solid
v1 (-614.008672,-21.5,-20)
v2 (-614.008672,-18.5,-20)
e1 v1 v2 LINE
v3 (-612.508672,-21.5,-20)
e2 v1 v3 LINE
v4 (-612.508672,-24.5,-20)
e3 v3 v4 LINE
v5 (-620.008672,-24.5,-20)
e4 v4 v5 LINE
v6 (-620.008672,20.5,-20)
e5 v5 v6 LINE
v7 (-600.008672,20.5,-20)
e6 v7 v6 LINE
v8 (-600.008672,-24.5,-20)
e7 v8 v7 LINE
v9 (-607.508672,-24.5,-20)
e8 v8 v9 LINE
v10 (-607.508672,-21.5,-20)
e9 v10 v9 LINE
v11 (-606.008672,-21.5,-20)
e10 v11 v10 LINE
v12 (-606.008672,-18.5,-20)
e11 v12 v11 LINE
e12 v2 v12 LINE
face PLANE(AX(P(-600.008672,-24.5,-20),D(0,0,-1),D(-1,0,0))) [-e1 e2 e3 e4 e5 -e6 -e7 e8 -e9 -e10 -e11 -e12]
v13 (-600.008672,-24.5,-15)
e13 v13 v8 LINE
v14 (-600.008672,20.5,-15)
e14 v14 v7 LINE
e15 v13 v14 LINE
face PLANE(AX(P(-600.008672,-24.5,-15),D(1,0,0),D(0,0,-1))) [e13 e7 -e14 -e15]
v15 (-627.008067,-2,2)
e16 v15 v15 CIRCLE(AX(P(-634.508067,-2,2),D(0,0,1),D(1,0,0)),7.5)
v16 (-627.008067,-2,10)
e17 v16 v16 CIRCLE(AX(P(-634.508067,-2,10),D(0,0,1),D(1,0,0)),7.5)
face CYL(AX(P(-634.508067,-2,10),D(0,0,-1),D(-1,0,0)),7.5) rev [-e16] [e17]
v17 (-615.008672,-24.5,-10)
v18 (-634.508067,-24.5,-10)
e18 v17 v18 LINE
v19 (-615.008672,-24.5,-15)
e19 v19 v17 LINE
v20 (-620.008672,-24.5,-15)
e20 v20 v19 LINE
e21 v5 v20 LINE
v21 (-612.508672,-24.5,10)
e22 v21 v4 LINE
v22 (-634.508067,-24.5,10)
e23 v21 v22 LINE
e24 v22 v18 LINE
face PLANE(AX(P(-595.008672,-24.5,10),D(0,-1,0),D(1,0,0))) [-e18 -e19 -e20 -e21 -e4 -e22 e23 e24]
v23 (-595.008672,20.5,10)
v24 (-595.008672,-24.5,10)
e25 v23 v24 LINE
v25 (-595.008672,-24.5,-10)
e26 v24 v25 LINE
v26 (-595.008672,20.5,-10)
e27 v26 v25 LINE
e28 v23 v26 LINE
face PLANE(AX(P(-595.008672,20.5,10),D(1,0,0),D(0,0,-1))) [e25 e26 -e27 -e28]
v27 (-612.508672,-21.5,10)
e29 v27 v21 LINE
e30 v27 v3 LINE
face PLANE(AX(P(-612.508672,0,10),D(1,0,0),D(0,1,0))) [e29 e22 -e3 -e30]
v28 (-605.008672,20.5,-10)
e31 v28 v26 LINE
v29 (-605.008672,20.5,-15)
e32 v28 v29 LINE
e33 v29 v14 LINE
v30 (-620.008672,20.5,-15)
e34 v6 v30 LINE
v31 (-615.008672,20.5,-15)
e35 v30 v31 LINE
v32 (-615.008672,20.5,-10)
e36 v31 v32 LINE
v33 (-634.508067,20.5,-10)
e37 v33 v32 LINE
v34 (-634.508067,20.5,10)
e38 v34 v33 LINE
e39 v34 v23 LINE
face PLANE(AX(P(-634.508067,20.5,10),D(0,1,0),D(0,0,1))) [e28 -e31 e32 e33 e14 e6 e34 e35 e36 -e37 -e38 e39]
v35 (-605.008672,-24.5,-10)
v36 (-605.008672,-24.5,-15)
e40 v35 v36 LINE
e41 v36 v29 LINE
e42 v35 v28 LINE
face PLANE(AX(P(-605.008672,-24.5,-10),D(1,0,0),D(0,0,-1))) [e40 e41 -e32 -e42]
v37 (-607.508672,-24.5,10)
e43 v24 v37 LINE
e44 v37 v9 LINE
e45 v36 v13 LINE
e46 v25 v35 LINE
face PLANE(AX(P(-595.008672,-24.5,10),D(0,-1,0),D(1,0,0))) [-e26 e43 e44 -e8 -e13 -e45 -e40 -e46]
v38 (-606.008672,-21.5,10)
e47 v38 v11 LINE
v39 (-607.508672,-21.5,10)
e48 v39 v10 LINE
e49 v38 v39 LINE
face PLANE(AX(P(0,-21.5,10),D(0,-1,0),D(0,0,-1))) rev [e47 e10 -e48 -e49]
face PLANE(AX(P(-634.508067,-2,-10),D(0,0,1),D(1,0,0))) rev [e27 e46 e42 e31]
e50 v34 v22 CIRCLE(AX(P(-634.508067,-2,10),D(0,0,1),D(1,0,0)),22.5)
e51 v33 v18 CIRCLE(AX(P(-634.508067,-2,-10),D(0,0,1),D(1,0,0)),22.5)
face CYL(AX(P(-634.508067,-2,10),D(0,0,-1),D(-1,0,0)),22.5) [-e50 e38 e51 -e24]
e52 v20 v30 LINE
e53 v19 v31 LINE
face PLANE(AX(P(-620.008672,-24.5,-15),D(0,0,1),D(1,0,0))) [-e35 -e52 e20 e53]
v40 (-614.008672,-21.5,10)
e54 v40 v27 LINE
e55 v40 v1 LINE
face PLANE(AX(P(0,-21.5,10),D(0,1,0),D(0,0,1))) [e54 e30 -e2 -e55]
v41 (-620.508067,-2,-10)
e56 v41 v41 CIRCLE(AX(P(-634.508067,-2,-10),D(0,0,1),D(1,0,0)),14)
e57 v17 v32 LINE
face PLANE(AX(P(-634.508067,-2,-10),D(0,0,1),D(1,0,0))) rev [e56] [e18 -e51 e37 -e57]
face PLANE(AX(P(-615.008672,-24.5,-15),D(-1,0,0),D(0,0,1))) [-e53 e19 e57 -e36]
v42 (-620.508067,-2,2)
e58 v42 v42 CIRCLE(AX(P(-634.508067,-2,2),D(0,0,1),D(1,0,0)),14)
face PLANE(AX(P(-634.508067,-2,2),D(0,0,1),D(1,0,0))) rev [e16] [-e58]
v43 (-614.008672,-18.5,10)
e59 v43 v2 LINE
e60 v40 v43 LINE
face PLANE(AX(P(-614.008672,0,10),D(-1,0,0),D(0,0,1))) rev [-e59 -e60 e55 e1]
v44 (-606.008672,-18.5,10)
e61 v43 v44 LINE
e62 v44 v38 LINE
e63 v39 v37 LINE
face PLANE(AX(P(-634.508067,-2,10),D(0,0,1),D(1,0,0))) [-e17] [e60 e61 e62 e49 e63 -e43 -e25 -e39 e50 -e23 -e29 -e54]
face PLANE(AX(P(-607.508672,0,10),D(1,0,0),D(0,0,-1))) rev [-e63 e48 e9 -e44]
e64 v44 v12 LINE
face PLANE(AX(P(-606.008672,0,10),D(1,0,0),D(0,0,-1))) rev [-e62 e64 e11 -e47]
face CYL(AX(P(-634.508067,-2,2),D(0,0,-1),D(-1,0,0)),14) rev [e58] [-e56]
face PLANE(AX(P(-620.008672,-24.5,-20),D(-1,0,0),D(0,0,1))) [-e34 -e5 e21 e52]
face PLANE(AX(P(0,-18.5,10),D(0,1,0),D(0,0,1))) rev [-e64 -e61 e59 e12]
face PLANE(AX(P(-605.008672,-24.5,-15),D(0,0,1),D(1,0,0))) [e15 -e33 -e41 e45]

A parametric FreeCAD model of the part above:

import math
import FreeCAD as App
import Part
import Sketcher
Q = App.Units.Quantity

doc = App.newDocument("Part")
body = doc.addObject("PartDesign::Body", "Body")

sketch1 = body.newObject("Sketcher::SketchObject", "Sketch")
sketch1.AttachmentSupport = (doc.getObject("XY_Plane"), [""])
sketch1.MapMode = "FlatFace"
sketch1.addGeometry([
    Part.LineSegment(App.Vector(-595, 20, 0), App.Vector(-635, 20, 0)),
    Part.ArcOfCircle(Part.Circle(App.Vector(-635, -2, 0), App.Vector(0, 0, 1), 22), math.radians(90), math.radians(270)),
    Part.LineSegment(App.Vector(-635, -24, 0), App.Vector(-595, -24, 0)),
    Part.LineSegment(App.Vector(-595, -24, 0), App.Vector(-595, 20, 0)),
    Part.Circle(App.Vector(-635, -2, 0), App.Vector(0, 0, 1), 8),
], False)
sketch1.addConstraint([
    Sketcher.Constraint("Tangent", 0, 2, 1, 1),
    Sketcher.Constraint("Tangent", 1, 2, 2, 1),
    Sketcher.Constraint("Coincident", 2, 2, 3, 1),
    Sketcher.Constraint("Coincident", 3, 2, 0, 1),
    Sketcher.Constraint("Horizontal", 0),
    Sketcher.Constraint("Horizontal", 2),
    Sketcher.Constraint("Vertical", 3),
    Sketcher.Constraint("Coincident", 4, 3, 1, 3),
    Sketcher.Constraint("Diameter", 4, Q("15 mm")),
    Sketcher.Constraint("Radius", 1, Q("22.5 mm")),
    Sketcher.Constraint("DistanceY", 1, 3, -1, 1, Q("2 mm")),
    Sketcher.Constraint("DistanceX", 0, 2, 0, 1, Q("39.499395 mm")),
    Sketcher.Constraint("DistanceX", 2, 2, -1, 1, Q("595.008672 mm")),
])
pad1 = body.newObject("PartDesign::Pad", "Pad")
pad1.Profile = sketch1
pad1.Length = 20
pad1.Midplane = True

sketch2 = body.newObject("Sketcher::SketchObject", "Sketch001")
sketch2.AttachmentSupport = (doc.getObject("XY_Plane"), [""])
sketch2.MapMode = "FlatFace"
sketch2.addGeometry(Part.Circle(App.Vector(-635, -2, 0), App.Vector(0, 0, 1), 14), False)
sketch2.addConstraint([
    Sketcher.Constraint("Diameter", 0, Q("28 mm")),
    Sketcher.Constraint("DistanceY", 0, 3, -1, 1, Q("2 mm")),
    Sketcher.Constraint("DistanceX", 0, 3, -1, 1, Q("634.508067 mm")),
])
pocket1 = body.newObject("PartDesign::Pocket", "Pocket")
pocket1.Profile = sketch2
pocket1.Type = "TwoLengths"
pocket1.Length = 2
pocket1.Length2 = 10
pocket1.Reversed = True

sketch3 = body.newObject("Sketcher::SketchObject", "Sketch002")
sketch3.AttachmentSupport = (doc.getObject("XZ_Plane"), [""])
sketch3.MapMode = "FlatFace"
sketch3.AttachmentOffset = App.Placement(App.Vector(0, 0, -20.5), App.Rotation())
sketch3.addGeometry([
    Part.LineSegment(App.Vector(-605, -10, 0), App.Vector(-605, -15, 0)),
    Part.LineSegment(App.Vector(-605, -15, 0), App.Vector(-600, -15, 0)),
    Part.LineSegment(App.Vector(-600, -15, 0), App.Vector(-600, -20, 0)),
    Part.LineSegment(App.Vector(-600, -20, 0), App.Vector(-620, -20, 0)),
    Part.LineSegment(App.Vector(-620, -20, 0), App.Vector(-620, -15, 0)),
    Part.LineSegment(App.Vector(-620, -15, 0), App.Vector(-615, -15, 0)),
    Part.LineSegment(App.Vector(-615, -15, 0), App.Vector(-615, -10, 0)),
    Part.LineSegment(App.Vector(-615, -10, 0), App.Vector(-605, -10, 0)),
], False)
sketch3.addConstraint([
    Sketcher.Constraint("Coincident", 0, 2, 1, 1),
    Sketcher.Constraint("Coincident", 1, 2, 2, 1),
    Sketcher.Constraint("Coincident", 2, 2, 3, 1),
    Sketcher.Constraint("Coincident", 3, 2, 4, 1),
    Sketcher.Constraint("Coincident", 4, 2, 5, 1),
    Sketcher.Constraint("Coincident", 5, 2, 6, 1),
    Sketcher.Constraint("Coincident", 6, 2, 7, 1),
    Sketcher.Constraint("Coincident", 7, 2, 0, 1),
    Sketcher.Constraint("Vertical", 0),
    Sketcher.Constraint("Horizontal", 1),
    Sketcher.Constraint("Vertical", 2),
    Sketcher.Constraint("Horizontal", 3),
    Sketcher.Constraint("Vertical", 4),
    Sketcher.Constraint("Horizontal", 5),
    Sketcher.Constraint("Vertical", 6),
    Sketcher.Constraint("Horizontal", 7),
    Sketcher.Constraint("Horizontal", 1, 2, 4, 2),
    Sketcher.Constraint("Equal", 1, 5),
    Sketcher.Constraint("Equal", 5, 0),
    Sketcher.Constraint("Equal", 0, 2),
    Sketcher.Constraint("DistanceX", 1, 1, 1, 2, Q("5 mm")),
    Sketcher.Constraint("DistanceX", 3, 2, 3, 1, Q("20 mm")),
    Sketcher.Constraint("DistanceY", 0, 2, -1, 1, Q("15 mm")),
    Sketcher.Constraint("DistanceX", 0, 2, -1, 1, Q("605.008672 mm")),
])
pad2 = body.newObject("PartDesign::Pad", "Pad001")
pad2.Profile = sketch3
pad2.Length = 45

sketch4 = body.newObject("Sketcher::SketchObject", "Sketch003")
sketch4.AttachmentSupport = (doc.getObject("XY_Plane"), [""])
sketch4.MapMode = "FlatFace"
sketch4.addGeometry([
    Part.LineSegment(App.Vector(-612.5, -21.5, 0), App.Vector(-612.5, -24.5, 0)),
    Part.LineSegment(App.Vector(-612.5, -24.5, 0), App.Vector(-607.5, -24.5, 0)),
    Part.LineSegment(App.Vector(-607.5, -24.5, 0), App.Vector(-607.5, -21.5, 0)),
    Part.LineSegment(App.Vector(-607.5, -21.5, 0), App.Vector(-606, -21.5, 0)),
    Part.LineSegment(App.Vector(-606, -21.5, 0), App.Vector(-606, -18.5, 0)),
    Part.LineSegment(App.Vector(-606, -18.5, 0), App.Vector(-614, -18.5, 0)),
    Part.LineSegment(App.Vector(-614, -18.5, 0), App.Vector(-614, -21.5, 0)),
    Part.LineSegment(App.Vector(-614, -21.5, 0), App.Vector(-612.5, -21.5, 0)),
], False)
sketch4.addConstraint([
    Sketcher.Constraint("Coincident", 0, 2, 1, 1),
    Sketcher.Constraint("Coincident", 1, 2, 2, 1),
    Sketcher.Constraint("Coincident", 2, 2, 3, 1),
    Sketcher.Constraint("Coincident", 3, 2, 4, 1),
    Sketcher.Constraint("Coincident", 4, 2, 5, 1),
    Sketcher.Constraint("Coincident", 5, 2, 6, 1),
    Sketcher.Constraint("Coincident", 6, 2, 7, 1),
    Sketcher.Constraint("Coincident", 7, 2, 0, 1),
    Sketcher.Constraint("Vertical", 0),
    Sketcher.Constraint("Horizontal", 1),
    Sketcher.Constraint("Vertical", 2),
    Sketcher.Constraint("Horizontal", 3),
    Sketcher.Constraint("Vertical", 4),
    Sketcher.Constraint("Horizontal", 5),
    Sketcher.Constraint("Vertical", 6),
    Sketcher.Constraint("Horizontal", 7),
    Sketcher.Constraint("Horizontal", 3, 2, 6, 2),
    Sketcher.Constraint("Equal", 3, 7),
    Sketcher.Constraint("Equal", 2, 4),
    Sketcher.Constraint("DistanceX", 1, 1, 1, 2, Q("5 mm")),
    Sketcher.Constraint("DistanceX", 5, 2, 5, 1, Q("8 mm")),
    Sketcher.Constraint("DistanceY", 0, 2, 0, 1, Q("3 mm")),
    Sketcher.Constraint("DistanceY", 0, 2, -1, 1, Q("24.5 mm")),
    Sketcher.Constraint("DistanceX", 0, 2, -1, 1, Q("612.508672 mm")),
])
pocket2 = body.newObject("PartDesign::Pocket", "Pocket001")
pocket2.Profile = sketch4
pocket2.Type = "ThroughAll"
pocket2.Midplane = True

doc.recompute()
